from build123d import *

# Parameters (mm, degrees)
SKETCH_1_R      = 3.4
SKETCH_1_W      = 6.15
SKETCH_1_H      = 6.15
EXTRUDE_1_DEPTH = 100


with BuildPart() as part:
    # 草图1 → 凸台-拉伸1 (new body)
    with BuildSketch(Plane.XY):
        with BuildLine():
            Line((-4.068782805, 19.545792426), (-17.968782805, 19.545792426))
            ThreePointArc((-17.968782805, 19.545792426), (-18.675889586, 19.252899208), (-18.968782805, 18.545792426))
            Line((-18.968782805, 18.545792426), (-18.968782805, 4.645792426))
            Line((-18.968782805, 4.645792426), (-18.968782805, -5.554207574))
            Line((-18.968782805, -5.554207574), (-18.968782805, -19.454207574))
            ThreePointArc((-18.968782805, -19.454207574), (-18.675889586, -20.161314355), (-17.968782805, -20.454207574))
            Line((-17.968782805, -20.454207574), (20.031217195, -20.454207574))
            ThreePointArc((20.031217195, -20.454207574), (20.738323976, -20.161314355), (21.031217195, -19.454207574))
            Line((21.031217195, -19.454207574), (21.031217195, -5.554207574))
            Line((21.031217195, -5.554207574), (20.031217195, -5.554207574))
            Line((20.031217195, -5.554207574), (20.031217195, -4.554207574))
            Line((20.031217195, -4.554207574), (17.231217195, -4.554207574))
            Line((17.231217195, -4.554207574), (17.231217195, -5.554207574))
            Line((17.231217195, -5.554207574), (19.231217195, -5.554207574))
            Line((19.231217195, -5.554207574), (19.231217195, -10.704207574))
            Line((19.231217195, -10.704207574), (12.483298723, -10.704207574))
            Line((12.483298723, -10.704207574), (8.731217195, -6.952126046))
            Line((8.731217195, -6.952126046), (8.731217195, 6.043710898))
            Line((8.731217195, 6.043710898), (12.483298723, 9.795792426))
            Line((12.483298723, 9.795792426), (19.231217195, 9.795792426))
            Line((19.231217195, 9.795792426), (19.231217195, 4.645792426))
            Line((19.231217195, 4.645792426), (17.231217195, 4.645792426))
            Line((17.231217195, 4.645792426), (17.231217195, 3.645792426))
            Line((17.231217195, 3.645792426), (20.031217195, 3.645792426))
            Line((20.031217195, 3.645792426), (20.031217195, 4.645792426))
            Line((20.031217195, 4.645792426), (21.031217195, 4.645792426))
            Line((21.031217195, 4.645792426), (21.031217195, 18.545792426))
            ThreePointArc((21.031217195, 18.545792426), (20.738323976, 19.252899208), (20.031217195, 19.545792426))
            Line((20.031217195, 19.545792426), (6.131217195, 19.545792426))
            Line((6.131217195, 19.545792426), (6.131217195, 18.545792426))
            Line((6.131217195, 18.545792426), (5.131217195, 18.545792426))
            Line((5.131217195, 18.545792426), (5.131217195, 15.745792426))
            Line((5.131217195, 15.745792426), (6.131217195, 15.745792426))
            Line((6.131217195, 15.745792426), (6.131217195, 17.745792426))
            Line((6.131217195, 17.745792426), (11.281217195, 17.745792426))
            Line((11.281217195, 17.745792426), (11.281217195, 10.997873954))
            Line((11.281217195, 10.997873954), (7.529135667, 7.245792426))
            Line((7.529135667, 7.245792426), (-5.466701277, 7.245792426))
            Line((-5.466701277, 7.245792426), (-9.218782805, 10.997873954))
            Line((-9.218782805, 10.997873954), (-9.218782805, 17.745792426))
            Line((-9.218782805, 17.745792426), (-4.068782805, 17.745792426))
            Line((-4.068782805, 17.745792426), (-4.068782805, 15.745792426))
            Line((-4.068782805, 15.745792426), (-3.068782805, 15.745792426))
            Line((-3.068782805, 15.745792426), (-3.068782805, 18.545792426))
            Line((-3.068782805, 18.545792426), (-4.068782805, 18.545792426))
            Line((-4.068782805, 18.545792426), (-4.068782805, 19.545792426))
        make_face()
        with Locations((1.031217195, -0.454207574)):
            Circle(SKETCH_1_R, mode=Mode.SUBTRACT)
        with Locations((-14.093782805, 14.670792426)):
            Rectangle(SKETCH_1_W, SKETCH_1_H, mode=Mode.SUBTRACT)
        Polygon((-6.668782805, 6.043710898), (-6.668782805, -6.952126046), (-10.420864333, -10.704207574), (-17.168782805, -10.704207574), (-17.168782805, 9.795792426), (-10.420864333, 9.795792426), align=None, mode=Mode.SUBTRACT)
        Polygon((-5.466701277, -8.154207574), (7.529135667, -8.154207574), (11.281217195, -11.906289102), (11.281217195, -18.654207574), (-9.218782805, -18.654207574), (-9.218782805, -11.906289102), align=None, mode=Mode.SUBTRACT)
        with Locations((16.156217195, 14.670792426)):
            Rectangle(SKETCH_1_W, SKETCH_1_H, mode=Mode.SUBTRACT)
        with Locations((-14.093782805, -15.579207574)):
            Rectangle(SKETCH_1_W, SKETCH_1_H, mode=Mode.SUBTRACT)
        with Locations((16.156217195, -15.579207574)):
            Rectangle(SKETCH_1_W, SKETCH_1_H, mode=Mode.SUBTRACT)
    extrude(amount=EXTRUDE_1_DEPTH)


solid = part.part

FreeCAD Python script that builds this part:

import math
import FreeCAD as App
import Part
import Sketcher
from FreeCAD import Vector

doc = App.newDocument("Part")
body = doc.addObject("PartDesign::Body", "Body")

sketch1 = body.newObject("Sketcher::SketchObject", "Sketch")
sketch1.AttachmentSupport = (doc.getObject("XY_Plane"), [""])
sketch1.MapMode = "FlatFace"
sketch1.addGeometry([
    Part.LineSegment(Vector(-4.068783, 19.545792, 0), Vector(-17.968783, 19.545792, 0)),
    Part.ArcOfCircle(Part.Circle(Vector(-17.968783, 18.545792, 0), Vector(0, 0, 1), 1), math.radians(90), math.radians(180)),
    Part.LineSegment(Vector(-18.968783, 18.545792, 0), Vector(-18.968783, -19.454208, 0)),
    Part.ArcOfCircle(Part.Circle(Vector(-17.968783, -19.454208, 0), Vector(0, 0, 1), 1), math.radians(-180), math.radians(-90)),
    Part.LineSegment(Vector(-17.968783, -20.454208, 0), Vector(20.031217, -20.454208, 0)),
    Part.ArcOfCircle(Part.Circle(Vector(20.031217, -19.454208, 0), Vector(0, 0, 1), 1), math.radians(-90), math.radians(0)),
    Part.LineSegment(Vector(21.031217, -19.454208, 0), Vector(21.031217, -5.554208, 0)),
    Part.LineSegment(Vector(21.031217, -5.554208, 0), Vector(20.031217, -5.554208, 0)),
    Part.LineSegment(Vector(20.031217, -5.554208, 0), Vector(20.031217, -4.554208, 0)),
    Part.LineSegment(Vector(20.031217, -4.554208, 0), Vector(17.231217, -4.554208, 0)),
    Part.LineSegment(Vector(17.231217, -4.554208, 0), Vector(17.231217, -5.554208, 0)),
    Part.LineSegment(Vector(17.231217, -5.554208, 0), Vector(19.231217, -5.554208, 0)),
    Part.LineSegment(Vector(19.231217, -5.554208, 0), Vector(19.231217, -10.704208, 0)),
    Part.LineSegment(Vector(19.231217, -10.704208, 0), Vector(12.483299, -10.704208, 0)),
    Part.LineSegment(Vector(12.483299, -10.704208, 0), Vector(8.731217, -6.952126, 0)),
    Part.LineSegment(Vector(8.731217, -6.952126, 0), Vector(8.731217, 6.043711, 0)),
    Part.LineSegment(Vector(8.731217, 6.043711, 0), Vector(12.483299, 9.795792, 0)),
    Part.LineSegment(Vector(12.483299, 9.795792, 0), Vector(19.231217, 9.795792, 0)),
    Part.LineSegment(Vector(19.231217, 9.795792, 0), Vector(19.231217, 4.645792, 0)),
    Part.LineSegment(Vector(19.231217, 4.645792, 0), Vector(17.231217, 4.645792, 0)),
    Part.LineSegment(Vector(17.231217, 4.645792, 0), Vector(17.231217, 3.645792, 0)),
    Part.LineSegment(Vector(17.231217, 3.645792, 0), Vector(20.031217, 3.645792, 0)),
    Part.LineSegment(Vector(20.031217, 3.645792, 0), Vector(20.031217, 4.645792, 0)),
    Part.LineSegment(Vector(20.031217, 4.645792, 0), Vector(21.031217, 4.645792, 0)),
    Part.LineSegment(Vector(21.031217, 4.645792, 0), Vector(21.031217, 18.545792, 0)),
    Part.ArcOfCircle(Part.Circle(Vector(20.031217, 18.545792, 0), Vector(0, 0, 1), 1), math.radians(0), math.radians(90)),
    Part.LineSegment(Vector(20.031217, 19.545792, 0), Vector(6.131217, 19.545792, 0)),
    Part.LineSegment(Vector(6.131217, 19.545792, 0), Vector(6.131217, 18.545792, 0)),
    Part.LineSegment(Vector(6.131217, 18.545792, 0), Vector(5.131217, 18.545792, 0)),
    Part.LineSegment(Vector(5.131217, 18.545792, 0), Vector(5.131217, 15.745792, 0)),
    Part.LineSegment(Vector(5.131217, 15.745792, 0), Vector(6.131217, 15.745792, 0)),
    Part.LineSegment(Vector(6.131217, 15.745792, 0), Vector(6.131217, 17.745792, 0)),
    Part.LineSegment(Vector(6.131217, 17.745792, 0), Vector(11.281217, 17.745792, 0)),
    Part.LineSegment(Vector(11.281217, 17.745792, 0), Vector(11.281217, 10.997874, 0)),
    Part.LineSegment(Vector(11.281217, 10.997874, 0), Vector(7.529136, 7.245792, 0)),
    Part.LineSegment(Vector(7.529136, 7.245792, 0), Vector(-5.466701, 7.245792, 0)),
    Part.LineSegment(Vector(-5.466701, 7.245792, 0), Vector(-9.218783, 10.997874, 0)),
    Part.LineSegment(Vector(-9.218783, 10.997874, 0), Vector(-9.218783, 17.745792, 0)),
    Part.LineSegment(Vector(-9.218783, 17.745792, 0), Vector(-4.068783, 17.745792, 0)),
    Part.LineSegment(Vector(-4.068783, 17.745792, 0), Vector(-4.068783, 15.745792, 0)),
    Part.LineSegment(Vector(-4.068783, 15.745792, 0), Vector(-3.068783, 15.745792, 0)),
    Part.LineSegment(Vector(-3.068783, 15.745792, 0), Vector(-3.068783, 18.545792, 0)),
    Part.LineSegment(Vector(-3.068783, 18.545792, 0), Vector(-4.068783, 18.545792, 0)),
    Part.LineSegment(Vector(-4.068783, 18.545792, 0), Vector(-4.068783, 19.545792, 0)),
    Part.LineSegment(Vector(-11.018783, -18.654208, 0), Vector(-17.168783, -18.654208, 0)),
    Part.LineSegment(Vector(-17.168783, -18.654208, 0), Vector(-17.168783, -12.504208, 0)),
    Part.LineSegment(Vector(-17.168783, -12.504208, 0), Vector(-11.018783, -12.504208, 0)),
    Part.LineSegment(Vector(-11.018783, -12.504208, 0), Vector(-11.018783, -18.654208, 0)),
    Part.LineSegment(Vector(-9.218783, -11.906289, 0), Vector(-5.466701, -8.154208, 0)),
    Part.LineSegment(Vector(-5.466701, -8.154208, 0), Vector(7.529136, -8.154208, 0)),
    Part.LineSegment(Vector(7.529136, -8.154208, 0), Vector(11.281217, -11.906289, 0)),
    Part.LineSegment(Vector(11.281217, -11.906289, 0), Vector(11.281217, -18.654208, 0)),
    Part.LineSegment(Vector(11.281217, -18.654208, 0), Vector(-9.218783, -18.654208, 0)),
    Part.LineSegment(Vector(-9.218783, -18.654208, 0), Vector(-9.218783, -11.906289, 0)),
    Part.LineSegment(Vector(19.231217, -18.654208, 0), Vector(13.081217, -18.654208, 0)),
    Part.LineSegment(Vector(13.081217, -18.654208, 0), Vector(13.081217, -12.504208, 0)),
    Part.LineSegment(Vector(13.081217, -12.504208, 0), Vector(19.231217, -12.504208, 0)),
    Part.LineSegment(Vector(19.231217, -12.504208, 0), Vector(19.231217, -18.654208, 0)),
    Part.LineSegment(Vector(-10.420864, 9.795792, 0), Vector(-6.668783, 6.043711, 0)),
    Part.LineSegment(Vector(-6.668783, 6.043711, 0), Vector(-6.668783, -6.952126, 0)),
    Part.LineSegment(Vector(-6.668783, -6.952126, 0), Vector(-10.420864, -10.704208, 0)),
    Part.LineSegment(Vector(-10.420864, -10.704208, 0), Vector(-17.168783, -10.704208, 0)),
    Part.LineSegment(Vector(-17.168783, -10.704208, 0), Vector(-17.168783, 9.795792, 0)),
    Part.LineSegment(Vector(-17.168783, 9.795792, 0), Vector(-10.420864, 9.795792, 0)),
    Part.Circle(Vector(1.031217, -0.454208, 0), Vector(0, 0, 1), 3.4),
    Part.LineSegment(Vector(-11.018783, 11.595792, 0), Vector(-17.168783, 11.595792, 0)),
    Part.LineSegment(Vector(-17.168783, 11.595792, 0), Vector(-17.168783, 17.745792, 0)),
    Part.LineSegment(Vector(-17.168783, 17.745792, 0), Vector(-11.018783, 17.745792, 0)),
    Part.LineSegment(Vector(-11.018783, 17.745792, 0), Vector(-11.018783, 11.595792, 0)),
    Part.LineSegment(Vector(19.231217, 11.595792, 0), Vector(13.081217, 11.595792, 0)),
    Part.LineSegment(Vector(13.081217, 11.595792, 0), Vector(13.081217, 17.745792, 0)),
    Part.LineSegment(Vector(13.081217, 17.745792, 0), Vector(19.231217, 17.745792, 0)),
    Part.LineSegment(Vector(19.231217, 17.745792, 0), Vector(19.231217, 11.595792, 0)),
], False)
sketch1.addConstraint([
    Sketcher.Constraint("Tangent", 0, 2, 1, 1),
    Sketcher.Constraint("Tangent", 1, 2, 2, 1),
    Sketcher.Constraint("Tangent", 2, 2, 3, 1),
    Sketcher.Constraint("Tangent", 3, 2, 4, 1),
    Sketcher.Constraint("Tangent", 4, 2, 5, 1),
    Sketcher.Constraint("Tangent", 5, 2, 6, 1),
    Sketcher.Constraint("Coincident", 6, 2, 7, 1),
    Sketcher.Constraint("Coincident", 7, 2, 8, 1),
    Sketcher.Constraint("Coincident", 8, 2, 9, 1),
    Sketcher.Constraint("Coincident", 9, 2, 10, 1),
    Sketcher.Constraint("Coincident", 10, 2, 11, 1),
    Sketcher.Constraint("Coincident", 11, 2, 12, 1),
    Sketcher.Constraint("Coincident", 12, 2, 13, 1),
    Sketcher.Constraint("Coincident", 13, 2, 14, 1),
    Sketcher.Constraint("Coincident", 14, 2, 15, 1),
    Sketcher.Constraint("Coincident", 15, 2, 16, 1),
    Sketcher.Constraint("Coincident", 16, 2, 17, 1),
    Sketcher.Constraint("Coincident", 17, 2, 18, 1),
    Sketcher.Constraint("Coincident", 18, 2, 19, 1),
    Sketcher.Constraint("Coincident", 19, 2, 20, 1),
    Sketcher.Constraint("Coincident", 20, 2, 21, 1),
    Sketcher.Constraint("Coincident", 21, 2, 22, 1),
    Sketcher.Constraint("Coincident", 22, 2, 23, 1),
    Sketcher.Constraint("Coincident", 23, 2, 24, 1),
    Sketcher.Constraint("Tangent", 24, 2, 25, 1),
    Sketcher.Constraint("Tangent", 25, 2, 26, 1),
    Sketcher.Constraint("Coincident", 26, 2, 27, 1),
    Sketcher.Constraint("Coincident", 27, 2, 28, 1),
    Sketcher.Constraint("Coincident", 28, 2, 29, 1),
    Sketcher.Constraint("Coincident", 29, 2, 30, 1),
    Sketcher.Constraint("Coincident", 30, 2, 31, 1),
    Sketcher.Constraint("Coincident", 31, 2, 32, 1),
    Sketcher.Constraint("Coincident", 32, 2, 33, 1),
    Sketcher.Constraint("Coincident", 33, 2, 34, 1),
    Sketcher.Constraint("Coincident", 34, 2, 35, 1),
    Sketcher.Constraint("Coincident", 35, 2, 36, 1),
    Sketcher.Constraint("Coincident", 36, 2, 37, 1),
    Sketcher.Constraint("Coincident", 37, 2, 38, 1),
    Sketcher.Constraint("Coincident", 38, 2, 39, 1),
    Sketcher.Constraint("Coincident", 39, 2, 40, 1),
    Sketcher.Constraint("Coincident", 40, 2, 41, 1),
    Sketcher.Constraint("Coincident", 41, 2, 42, 1),
    Sketcher.Constraint("Coincident", 42, 2, 43, 1),
    Sketcher.Constraint("Coincident", 43, 2, 0, 1),
    Sketcher.Constraint("Coincident", 44, 2, 45, 1),
    Sketcher.Constraint("Coincident", 45, 2, 46, 1),
    Sketcher.Constraint("Coincident", 46, 2, 47, 1),
    Sketcher.Constraint("Coincident", 47, 2, 44, 1),
    Sketcher.Constraint("Coincident", 48, 2, 49, 1),
    Sketcher.Constraint("Coincident", 49, 2, 50, 1),
    Sketcher.Constraint("Coincident", 50, 2, 51, 1),
    Sketcher.Constraint("Coincident", 51, 2, 52, 1),
    Sketcher.Constraint("Coincident", 52, 2, 53, 1),
    Sketcher.Constraint("Coincident", 53, 2, 48, 1),
    Sketcher.Constraint("Coincident", 54, 2, 55, 1),
    Sketcher.Constraint("Coincident", 55, 2, 56, 1),
    Sketcher.Constraint("Coincident", 56, 2, 57, 1),
    Sketcher.Constraint("Coincident", 57, 2, 54, 1),
    Sketcher.Constraint("Coincident", 58, 2, 59, 1),
    Sketcher.Constraint("Coincident", 59, 2, 60, 1),
    Sketcher.Constraint("Coincident", 60, 2, 61, 1),
    Sketcher.Constraint("Coincident", 61, 2, 62, 1),
    Sketcher.Constraint("Coincident", 62, 2, 63, 1),
    Sketcher.Constraint("Coincident", 63, 2, 58, 1),
    Sketcher.Constraint("Coincident", 65, 2, 66, 1),
    Sketcher.Constraint("Coincident", 66, 2, 67, 1),
    Sketcher.Constraint("Coincident", 67, 2, 68, 1),
    Sketcher.Constraint("Coincident", 68, 2, 65, 1),
    Sketcher.Constraint("Coincident", 69, 2, 70, 1),
    Sketcher.Constraint("Coincident", 70, 2, 71, 1),
    Sketcher.Constraint("Coincident", 71, 2, 72, 1),
    Sketcher.Constraint("Coincident", 72, 2, 69, 1),
    Sketcher.Constraint("Horizontal", 0),
    Sketcher.Constraint("Vertical", 2),
    Sketcher.Constraint("Horizontal", 4),
    Sketcher.Constraint("Vertical", 6),
    Sketcher.Constraint("Horizontal", 7),
    Sketcher.Constraint("Vertical", 8),
    Sketcher.Constraint("Horizontal", 9),
    Sketcher.Constraint("Vertical", 10),
    Sketcher.Constraint("Horizontal", 11),
    Sketcher.Constraint("Vertical", 12),
    Sketcher.Constraint("Horizontal", 13),
    Sketcher.Constraint("Vertical", 15),
    Sketcher.Constraint("Horizontal", 17),
    Sketcher.Constraint("Vertical", 18),
    Sketcher.Constraint("Horizontal", 19),
    Sketcher.Constraint("Vertical", 20),
    Sketcher.Constraint("Horizontal", 21),
    Sketcher.Constraint("Vertical", 22),
    Sketcher.Constraint("Horizontal", 23),
    Sketcher.Constraint("Vertical", 24),
    Sketcher.Constraint("Horizontal", 26),
    Sketcher.Constraint("Vertical", 27),
    Sketcher.Constraint("Horizontal", 28),
    Sketcher.Constraint("Vertical", 29),
    Sketcher.Constraint("Horizontal", 30),
    Sketcher.Constraint("Vertical", 31),
    Sketcher.Constraint("Horizontal", 32),
    Sketcher.Constraint("Vertical", 33),
    Sketcher.Constraint("Horizontal", 35),
    Sketcher.Constraint("Vertical", 37),
    Sketcher.Constraint("Horizontal", 38),
    Sketcher.Constraint("Vertical", 39),
    Sketcher.Constraint("Horizontal", 40),
    Sketcher.Constraint("Vertical", 41),
    Sketcher.Constraint("Horizontal", 42),
    Sketcher.Constraint("Vertical", 43),
    Sketcher.Constraint("Horizontal", 44),
    Sketcher.Constraint("Vertical", 45),
    Sketcher.Constraint("Horizontal", 46),
    Sketcher.Constraint("Vertical", 47),
    Sketcher.Constraint("Horizontal", 49),
    Sketcher.Constraint("Vertical", 51),
    Sketcher.Constraint("Horizontal", 52),
    Sketcher.Constraint("Vertical", 53),
    Sketcher.Constraint("Horizontal", 54),
    Sketcher.Constraint("Vertical", 55),
    Sketcher.Constraint("Horizontal", 56),
    Sketcher.Constraint("Vertical", 57),
    Sketcher.Constraint("Vertical", 59),
    Sketcher.Constraint("Horizontal", 61),
    Sketcher.Constraint("Vertical", 62),
    Sketcher.Constraint("Horizontal", 63),
    Sketcher.Constraint("Horizontal", 65),
    Sketcher.Constraint("Vertical", 66),
    Sketcher.Constraint("Horizontal", 67),
    Sketcher.Constraint("Vertical", 68),
    Sketcher.Constraint("Horizontal", 69),
    Sketcher.Constraint("Vertical", 70),
    Sketcher.Constraint("Horizontal", 71),
    Sketcher.Constraint("Vertical", 72),
    Sketcher.Constraint("Equal", 1, 3),
    Sketcher.Constraint("Equal", 3, 5),
    Sketcher.Constraint("Equal", 5, 25),
    Sketcher.Constraint("Perpendicular", 14, 16),
    Sketcher.Constraint("Parallel", 16, 34),
    Sketcher.Constraint("Perpendicular", 34, 36),
    Sketcher.Constraint("Perpendicular", 36, 48),
    Sketcher.Constraint("Perpendicular", 48, 50),
    Sketcher.Constraint("Parallel", 50, 58),
    Sketcher.Constraint("Perpendicular", 58, 60),
    Sketcher.Constraint("Horizontal", 1, 3, 25, 3),
    Sketcher.Constraint("Horizontal", 7, 2, 10, 2),
    Sketcher.Constraint("Horizontal", 19, 2, 22, 2),
    Sketcher.Constraint("Horizontal", 24, 2, 27, 2),
    Sketcher.Constraint("Horizontal", 33, 2, 36, 2),
    Sketcher.Constraint("Horizontal", 32, 2, 37, 2),
    Sketcher.Constraint("Horizontal", 30, 2, 39, 2),
    Sketcher.Constraint("Horizontal", 28, 2, 41, 2),
    Sketcher.Constraint("Horizontal", 47, 2, 51, 2),
    Sketcher.Constraint("Horizontal", 50, 2, 53, 2),
    Sketcher.Constraint("Horizontal", 52, 2, 54, 2),
    Sketcher.Constraint("Horizontal", 46, 2, 55, 2),
    Sketcher.Constraint("Horizontal", 15, 2, 58, 2),
    Sketcher.Constraint("Horizontal", 14, 2, 59, 2),
    Sketcher.Constraint("Horizontal", 13, 2, 60, 2),
    Sketcher.Constraint("Horizontal", 17, 2, 62, 2),
    Sketcher.Constraint("Horizontal", 38, 2, 66, 2),
    Sketcher.Constraint("Horizontal", 68, 2, 69, 2),
    Sketcher.Constraint("Horizontal", 67, 2, 70, 2),
    Sketcher.Constraint("Vertical", 5, 3, 25, 3),
    Sketcher.Constraint("Vertical", 4, 2, 7, 2),
    Sketcher.Constraint("Vertical", 13, 2, 16, 2),
    Sketcher.Constraint("Vertical", 12, 2, 17, 2),
    Sketcher.Constraint("Vertical", 10, 2, 19, 2),
    Sketcher.Constraint("Vertical", 8, 2, 21, 2),
    Sketcher.Constraint("Vertical", 27, 2, 30, 2),
    Sketcher.Constraint("Vertical", 39, 2, 42, 2),
    Sketcher.Constraint("Vertical", 35, 2, 48, 2),
    Sketcher.Constraint("Vertical", 34, 2, 49, 2),
    Sketcher.Constraint("Vertical", 33, 2, 50, 2),
    Sketcher.Constraint("Vertical", 37, 2, 52, 2),
    Sketcher.Constraint("Vertical", 18, 2, 56, 2),
    Sketcher.Constraint("Vertical", 45, 2, 61, 2),
    Sketcher.Constraint("Vertical", 62, 2, 65, 2),
    Sketcher.Constraint("Vertical", 47, 2, 67, 2),
    Sketcher.Constraint("Vertical", 55, 2, 69, 2),
    Sketcher.Constraint("Vertical", 57, 2, 71, 2),
    Sketcher.Constraint("Equal", 0, 26),
    Sketcher.Constraint("Equal", 23, 28),
    Sketcher.Constraint("Equal", 32, 38),
    Sketcher.Constraint("Equal", 30, 40),
    Sketcher.Constraint("Equal", 46, 54),
    Sketcher.Constraint("Equal", 17, 61),
    Sketcher.Constraint("Equal", 4, 2),
    Sketcher.Constraint("Equal", 26, 6),
    Sketcher.Constraint("Equal", 42, 8),
    Sketcher.Constraint("Equal", 38, 12),
    Sketcher.Constraint("Equal", 49, 15),
    Sketcher.Constraint("Equal", 12, 18),
    Sketcher.Constraint("Equal", 10, 20),
    Sketcher.Constraint("Equal", 6, 24),
    Sketcher.Constraint("Equal", 21, 29),
    Sketcher.Constraint("Equal", 19, 31),
    Sketcher.Constraint("Equal", 63, 33),
    Sketcher.Constraint("Equal", 71, 45),
    Sketcher.Constraint("Equal", 37, 51),
    Sketcher.Constraint("Equal", 57, 66),
    Sketcher.Constraint("Radius", 1, 1.0),
    Sketcher.Constraint("Diameter", 64, 6.8),
    Sketcher.Constraint("DistanceX", 4, 1, 4, 2, 38.0),
    Sketcher.Constraint("DistanceX", 11, 1, 11, 2, 2.0),
    Sketcher.Constraint("DistanceX", 0, 2, 0, 1, 13.9),
    Sketcher.Constraint("DistanceX", 9, 2, 9, 1, 2.8),
    Sketcher.Constraint("DistanceX", 52, 2, 52, 1, 20.5),
    Sketcher.Constraint("DistanceX", 44, 2, 44, 1, 6.15),
    Sketcher.Constraint("DistanceX", 13, 2, 13, 1, 6.747918),
    Sketcher.Constraint("DistanceX", -1, 1, 13, 2, 12.483299),
    Sketcher.Constraint("DistanceX", 35, 2, -1, 1, 5.466701),
    Sketcher.Constraint("DistanceY", -1, 1, 15, 2, 6.043711),
    Sketcher.Constraint("DistanceY", 50, 2, -1, 1, 11.906289),
    Sketcher.Constraint("DistanceX", -1, 1, 64, 3, 1.031217),
    Sketcher.Constraint("DistanceY", 64, 3, -1, 1, 0.454208),
    Sketcher.Constraint("DistanceX", 44, 2, -1, 1, 17.168783),
])
pad1 = body.newObject("PartDesign::Pad", "Pad")
pad1.Profile = sketch1
pad1.Length = 100

doc.recompute()
